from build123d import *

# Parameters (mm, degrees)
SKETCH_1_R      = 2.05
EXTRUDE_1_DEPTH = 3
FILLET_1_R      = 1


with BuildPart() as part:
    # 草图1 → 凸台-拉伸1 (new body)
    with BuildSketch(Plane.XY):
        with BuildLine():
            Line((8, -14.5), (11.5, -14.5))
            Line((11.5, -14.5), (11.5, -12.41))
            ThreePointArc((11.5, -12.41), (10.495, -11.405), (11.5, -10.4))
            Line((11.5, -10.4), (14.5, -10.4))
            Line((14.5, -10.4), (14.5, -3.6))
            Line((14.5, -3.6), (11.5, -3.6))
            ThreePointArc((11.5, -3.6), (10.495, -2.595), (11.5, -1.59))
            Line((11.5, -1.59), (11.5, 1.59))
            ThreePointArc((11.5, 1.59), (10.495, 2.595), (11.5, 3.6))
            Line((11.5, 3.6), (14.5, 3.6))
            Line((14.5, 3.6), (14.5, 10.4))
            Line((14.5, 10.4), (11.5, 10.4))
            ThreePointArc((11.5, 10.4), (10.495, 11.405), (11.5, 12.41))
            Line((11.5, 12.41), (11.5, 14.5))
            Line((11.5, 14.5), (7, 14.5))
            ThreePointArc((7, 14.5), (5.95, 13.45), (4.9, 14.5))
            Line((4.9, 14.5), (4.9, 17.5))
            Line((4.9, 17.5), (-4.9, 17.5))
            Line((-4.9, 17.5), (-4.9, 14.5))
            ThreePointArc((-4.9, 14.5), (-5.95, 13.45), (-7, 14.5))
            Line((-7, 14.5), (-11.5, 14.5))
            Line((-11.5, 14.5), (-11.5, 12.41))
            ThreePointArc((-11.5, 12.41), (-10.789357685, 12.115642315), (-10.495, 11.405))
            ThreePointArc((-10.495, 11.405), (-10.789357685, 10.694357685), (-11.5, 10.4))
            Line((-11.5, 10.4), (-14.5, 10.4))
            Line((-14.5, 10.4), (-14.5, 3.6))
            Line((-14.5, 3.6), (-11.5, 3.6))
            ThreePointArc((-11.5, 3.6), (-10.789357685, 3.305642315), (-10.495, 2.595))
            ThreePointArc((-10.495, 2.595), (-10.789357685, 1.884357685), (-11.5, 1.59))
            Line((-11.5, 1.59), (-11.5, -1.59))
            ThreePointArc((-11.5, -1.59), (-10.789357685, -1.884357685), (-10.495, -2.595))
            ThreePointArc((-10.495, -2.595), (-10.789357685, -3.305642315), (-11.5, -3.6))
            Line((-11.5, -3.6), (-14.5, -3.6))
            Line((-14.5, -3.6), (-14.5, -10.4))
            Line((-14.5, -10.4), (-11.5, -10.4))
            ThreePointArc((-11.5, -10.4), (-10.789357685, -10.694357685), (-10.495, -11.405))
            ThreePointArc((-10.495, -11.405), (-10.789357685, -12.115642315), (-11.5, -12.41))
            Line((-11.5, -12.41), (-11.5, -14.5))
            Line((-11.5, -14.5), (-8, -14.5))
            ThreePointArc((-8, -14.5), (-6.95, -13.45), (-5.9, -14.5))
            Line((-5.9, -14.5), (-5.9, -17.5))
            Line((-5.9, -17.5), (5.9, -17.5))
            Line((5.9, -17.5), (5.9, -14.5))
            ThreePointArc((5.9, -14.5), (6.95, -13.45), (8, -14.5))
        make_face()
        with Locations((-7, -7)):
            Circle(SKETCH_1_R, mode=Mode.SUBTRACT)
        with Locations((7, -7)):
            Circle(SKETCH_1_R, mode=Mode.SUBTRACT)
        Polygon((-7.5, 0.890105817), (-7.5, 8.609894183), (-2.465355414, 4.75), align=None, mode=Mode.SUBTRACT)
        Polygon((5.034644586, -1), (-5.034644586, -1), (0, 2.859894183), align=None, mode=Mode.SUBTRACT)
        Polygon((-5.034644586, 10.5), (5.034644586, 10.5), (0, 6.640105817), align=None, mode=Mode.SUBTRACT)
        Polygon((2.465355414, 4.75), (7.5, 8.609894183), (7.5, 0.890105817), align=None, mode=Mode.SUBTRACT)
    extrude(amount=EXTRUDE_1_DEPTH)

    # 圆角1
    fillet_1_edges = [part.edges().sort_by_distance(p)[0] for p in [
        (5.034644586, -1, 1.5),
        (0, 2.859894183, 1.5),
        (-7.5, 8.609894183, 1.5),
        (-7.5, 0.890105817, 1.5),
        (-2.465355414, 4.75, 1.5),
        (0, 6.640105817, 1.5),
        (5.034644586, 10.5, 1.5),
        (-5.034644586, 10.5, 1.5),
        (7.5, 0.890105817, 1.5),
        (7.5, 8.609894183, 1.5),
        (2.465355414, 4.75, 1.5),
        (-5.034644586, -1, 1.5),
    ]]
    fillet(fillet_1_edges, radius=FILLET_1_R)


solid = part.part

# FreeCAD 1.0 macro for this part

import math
import FreeCAD as App
import Part
import Sketcher

V = App.Vector


def edges_at(feature, points):
    """Names of the edges that pass closest to the given points."""
    edges = feature.Shape.Edges
    near = lambda p: min(range(len(edges)), key=lambda i: edges[i].distToShape(Part.Vertex(*p))[0])
    return sorted({f"Edge{near(p) + 1}" for p in points})


def add_polygon(sketch, points):
    """Adds a closed chain of lines whose ends are joined by coincident constraints."""
    first, n = sketch.GeometryCount, len(points)
    for a, b in zip(points, points[1:] + points[:1]):
        sketch.addGeometry(Part.LineSegment(App.Vector(*a, 0), App.Vector(*b, 0)), False)
    for i in range(n):
        sketch.addConstraint(Sketcher.Constraint("Coincident", first + i, 2, first + (i + 1) % n, 1))

doc = App.newDocument("Part")
body = doc.addObject("PartDesign::Body", "Body")

sketch1 = doc.addObject("Sketcher::SketchObject", "Sketch")
body.addObject(sketch1)
sketch1.AttachmentSupport = (doc.XY_Plane, [""])
sketch1.MapMode = "FlatFace"
sketch1.addGeometry(Part.LineSegment(V(8, -14.5, 0), V(11.5, -14.5, 0)), False)
sketch1.addGeometry(Part.LineSegment(V(11.5, -14.5, 0), V(11.5, -12.4, 0)), False)
sketch1.addGeometry(Part.ArcOfCircle(Part.Circle(V(11.5, -11.4, 0), V(0, 0, 1), 1), math.radians(90), math.radians(270)), False)
sketch1.addGeometry(Part.LineSegment(V(11.5, -10.4, 0), V(14.5, -10.4, 0)), False)
sketch1.addGeometry(Part.LineSegment(V(14.5, -10.4, 0), V(14.5, -3.6, 0)), False)
sketch1.addGeometry(Part.LineSegment(V(14.5, -3.6, 0), V(11.5, -3.6, 0)), False)
sketch1.addGeometry(Part.ArcOfCircle(Part.Circle(V(11.5, -2.6, 0), V(0, 0, 1), 1), math.radians(90), math.radians(270)), False)
sketch1.addGeometry(Part.LineSegment(V(11.5, -1.6, 0), V(11.5, 1.6, 0)), False)
sketch1.addGeometry(Part.ArcOfCircle(Part.Circle(V(11.5, 2.6, 0), V(0, 0, 1), 1), math.radians(90), math.radians(270)), False)
sketch1.addGeometry(Part.LineSegment(V(11.5, 3.6, 0), V(14.5, 3.6, 0)), False)
sketch1.addGeometry(Part.LineSegment(V(14.5, 3.6, 0), V(14.5, 10.4, 0)), False)
sketch1.addGeometry(Part.LineSegment(V(14.5, 10.4, 0), V(11.5, 10.4, 0)), False)
sketch1.addGeometry(Part.ArcOfCircle(Part.Circle(V(11.5, 11.4, 0), V(0, 0, 1), 1), math.radians(90), math.radians(270)), False)
sketch1.addGeometry(Part.LineSegment(V(11.5, 12.4, 0), V(11.5, 14.5, 0)), False)
sketch1.addGeometry(Part.LineSegment(V(11.5, 14.5, 0), V(7, 14.5, 0)), False)
sketch1.addGeometry(Part.ArcOfCircle(Part.Circle(V(6, 14.5, 0), V(0, 0, 1), 1.1), math.radians(180), math.radians(360)), False)
sketch1.addGeometry(Part.LineSegment(V(4.9, 14.5, 0), V(4.9, 17.5, 0)), False)
sketch1.addGeometry(Part.LineSegment(V(4.9, 17.5, 0), V(-4.9, 17.5, 0)), False)
sketch1.addGeometry(Part.LineSegment(V(-4.9, 17.5, 0), V(-4.9, 14.5, 0)), False)
sketch1.addGeometry(Part.ArcOfCircle(Part.Circle(V(-6, 14.5, 0), V(0, 0, 1), 1.1), math.radians(180), math.radians(360)), False)
sketch1.addGeometry(Part.LineSegment(V(-7, 14.5, 0), V(-11.5, 14.5, 0)), False)
sketch1.addGeometry(Part.LineSegment(V(-11.5, 14.5, 0), V(-11.5, 12.4, 0)), False)
sketch1.addGeometry(Part.ArcOfCircle(Part.Circle(V(-11.5, 11.4, 0), V(0, 0, 1), 1), math.radians(0), math.radians(90)), False)
sketch1.addGeometry(Part.ArcOfCircle(Part.Circle(V(-11.5, 11.4, 0), V(0, 0, 1), 1), math.radians(-90), math.radians(0)), False)
sketch1.addGeometry(Part.LineSegment(V(-11.5, 10.4, 0), V(-14.5, 10.4, 0)), False)
sketch1.addGeometry(Part.LineSegment(V(-14.5, 10.4, 0), V(-14.5, 3.6, 0)), False)
sketch1.addGeometry(Part.LineSegment(V(-14.5, 3.6, 0), V(-11.5, 3.6, 0)), False)
sketch1.addGeometry(Part.ArcOfCircle(Part.Circle(V(-11.5, 2.6, 0), V(0, 0, 1), 1), math.radians(0), math.radians(90)), False)
sketch1.addGeometry(Part.ArcOfCircle(Part.Circle(V(-11.5, 2.6, 0), V(0, 0, 1), 1), math.radians(-90), math.radians(0)), False)
sketch1.addGeometry(Part.LineSegment(V(-11.5, 1.6, 0), V(-11.5, -1.6, 0)), False)
sketch1.addGeometry(Part.ArcOfCircle(Part.Circle(V(-11.5, -2.6, 0), V(0, 0, 1), 1), math.radians(0), math.radians(90)), False)
sketch1.addGeometry(Part.ArcOfCircle(Part.Circle(V(-11.5, -2.6, 0), V(0, 0, 1), 1), math.radians(-90), math.radians(0)), False)
sketch1.addGeometry(Part.LineSegment(V(-11.5, -3.6, 0), V(-14.5, -3.6, 0)), False)
sketch1.addGeometry(Part.LineSegment(V(-14.5, -3.6, 0), V(-14.5, -10.4, 0)), False)
sketch1.addGeometry(Part.LineSegment(V(-14.5, -10.4, 0), V(-11.5, -10.4, 0)), False)
sketch1.addGeometry(Part.ArcOfCircle(Part.Circle(V(-11.5, -11.4, 0), V(0, 0, 1), 1), math.radians(0), math.radians(90)), False)
sketch1.addGeometry(Part.ArcOfCircle(Part.Circle(V(-11.5, -11.4, 0), V(0, 0, 1), 1), math.radians(-90), math.radians(0)), False)
sketch1.addGeometry(Part.LineSegment(V(-11.5, -12.4, 0), V(-11.5, -14.5, 0)), False)
sketch1.addGeometry(Part.LineSegment(V(-11.5, -14.5, 0), V(-8, -14.5, 0)), False)
sketch1.addGeometry(Part.ArcOfCircle(Part.Circle(V(-7, -14.5, 0), V(0, 0, 1), 1.1), math.radians(0), math.radians(180)), False)
sketch1.addGeometry(Part.LineSegment(V(-5.9, -14.5, 0), V(-5.9, -17.5, 0)), False)
sketch1.addGeometry(Part.LineSegment(V(-5.9, -17.5, 0), V(5.9, -17.5, 0)), False)
sketch1.addGeometry(Part.LineSegment(V(5.9, -17.5, 0), V(5.9, -14.5, 0)), False)
sketch1.addGeometry(Part.ArcOfCircle(Part.Circle(V(7, -14.5, 0), V(0, 0, 1), 1.1), math.radians(0), math.radians(180)), False)
sketch1.addGeometry(Part.Circle(V(-7, -7, 0), V(0, 0, 1), 2), False)
sketch1.addGeometry(Part.Circle(V(7, -7, 0), V(0, 0, 1), 2), False)
add_polygon(sketch1, [(-2.5, 4.8), (-7.5, 0.9), (-7.5, 8.6)])
add_polygon(sketch1, [(0, 2.9), (5, -1), (-5, -1)])
add_polygon(sketch1, [(7.5, 0.9), (2.5, 4.8), (7.5, 8.6)])
add_polygon(sketch1, [(0, 6.6), (-5, 10.5), (5, 10.5)])
sketch1.addConstraint([
    Sketcher.Constraint("Coincident", 0, 2, 1, 1),
    Sketcher.Constraint("Coincident", 1, 2, 2, 2),
    Sketcher.Constraint("Tangent", 2, 1, 3, 1),
    Sketcher.Constraint("Coincident", 3, 2, 4, 1),
    Sketcher.Constraint("Coincident", 4, 2, 5, 1),
    Sketcher.Constraint("Tangent", 5, 2, 6, 2),
    Sketcher.Constraint("Coincident", 6, 1, 7, 1),
    Sketcher.Constraint("Coincident", 7, 2, 8, 2),
    Sketcher.Constraint("Tangent", 8, 1, 9, 1),
    Sketcher.Constraint("Coincident", 9, 2, 10, 1),
    Sketcher.Constraint("Coincident", 10, 2, 11, 1),
    Sketcher.Constraint("Tangent", 11, 2, 12, 2),
    Sketcher.Constraint("Coincident", 12, 1, 13, 1),
    Sketcher.Constraint("Coincident", 13, 2, 14, 1),
    Sketcher.Constraint("Coincident", 14, 2, 15, 2),
    Sketcher.Constraint("Tangent", 15, 1, 16, 1),
    Sketcher.Constraint("Coincident", 16, 2, 17, 1),
    Sketcher.Constraint("Coincident", 17, 2, 18, 1),
    Sketcher.Constraint("Tangent", 18, 2, 19, 2),
    Sketcher.Constraint("Coincident", 19, 1, 20, 1),
    Sketcher.Constraint("Coincident", 20, 2, 21, 1),
    Sketcher.Constraint("Coincident", 21, 2, 22, 2),
    Sketcher.Constraint("Tangent", 22, 1, 23, 2),
    Sketcher.Constraint("Tangent", 23, 1, 24, 1),
    Sketcher.Constraint("Coincident", 24, 2, 25, 1),
    Sketcher.Constraint("Coincident", 25, 2, 26, 1),
    Sketcher.Constraint("Tangent", 26, 2, 27, 2),
    Sketcher.Constraint("Tangent", 27, 1, 28, 2),
    Sketcher.Constraint("Coincident", 28, 1, 29, 1),
    Sketcher.Constraint("Coincident", 29, 2, 30, 2),
    Sketcher.Constraint("Tangent", 30, 1, 31, 2),
    Sketcher.Constraint("Tangent", 31, 1, 32, 1),
    Sketcher.Constraint("Coincident", 32, 2, 33, 1),
    Sketcher.Constraint("Coincident", 33, 2, 34, 1),
    Sketcher.Constraint("Tangent", 34, 2, 35, 2),
    Sketcher.Constraint("Tangent", 35, 1, 36, 2),
    Sketcher.Constraint("Coincident", 36, 1, 37, 1),
    Sketcher.Constraint("Coincident", 37, 2, 38, 1),
    Sketcher.Constraint("Coincident", 38, 2, 39, 2),
    Sketcher.Constraint("Tangent", 39, 1, 40, 1),
    Sketcher.Constraint("Coincident", 40, 2, 41, 1),
    Sketcher.Constraint("Coincident", 41, 2, 42, 1),
    Sketcher.Constraint("Tangent", 42, 2, 43, 2),
    Sketcher.Constraint("Coincident", 43, 1, 0, 1),
    Sketcher.Constraint("Horizontal", 0),
    Sketcher.Constraint("Vertical", 1),
    Sketcher.Constraint("Horizontal", 3),
    Sketcher.Constraint("Vertical", 4),
    Sketcher.Constraint("Horizontal", 5),
    Sketcher.Constraint("Vertical", 7),
    Sketcher.Constraint("Horizontal", 9),
    Sketcher.Constraint("Vertical", 10),
    Sketcher.Constraint("Horizontal", 11),
    Sketcher.Constraint("Vertical", 13),
    Sketcher.Constraint("Horizontal", 14),
    Sketcher.Constraint("Vertical", 16),
    Sketcher.Constraint("Horizontal", 17),
    Sketcher.Constraint("Vertical", 18),
    Sketcher.Constraint("Horizontal", 20),
    Sketcher.Constraint("Vertical", 21),
    Sketcher.Constraint("Horizontal", 24),
    Sketcher.Constraint("Vertical", 25),
    Sketcher.Constraint("Horizontal", 26),
    Sketcher.Constraint("Vertical", 29),
    Sketcher.Constraint("Horizontal", 32),
    Sketcher.Constraint("Vertical", 33),
    Sketcher.Constraint("Horizontal", 34),
    Sketcher.Constraint("Vertical", 37),
    Sketcher.Constraint("Horizontal", 38),
    Sketcher.Constraint("Vertical", 40),
    Sketcher.Constraint("Horizontal", 41),
    Sketcher.Constraint("Vertical", 42),
    Sketcher.Constraint("Vertical", 47),
    Sketcher.Constraint("Horizontal", 50),
    Sketcher.Constraint("Vertical", 54),
    Sketcher.Constraint("Horizontal", 56),
    Sketcher.Constraint("Equal", 2, 6),
    Sketcher.Constraint("Equal", 6, 8),
    Sketcher.Constraint("Equal", 8, 12),
    Sketcher.Constraint("Equal", 15, 19),
    Sketcher.Constraint("Equal", 12, 22),
    Sketcher.Constraint("Equal", 22, 23),
    Sketcher.Constraint("Equal", 23, 27),
    Sketcher.Constraint("Equal", 27, 28),
    Sketcher.Constraint("Equal", 28, 30),
    Sketcher.Constraint("Equal", 30, 31),
    Sketcher.Constraint("Equal", 31, 35),
    Sketcher.Constraint("Equal", 35, 36),
    Sketcher.Constraint("Equal", 19, 39),
    Sketcher.Constraint("Equal", 39, 43),
    Sketcher.Constraint("Equal", 44, 45),
    Sketcher.Constraint("Symmetric", 2, 3, 22, 3, -1, 1),
    Sketcher.Constraint("Symmetric", 6, 3, 27, 3, -1, 1),
    Sketcher.Constraint("Symmetric", 8, 3, 30, 3, -1, 1),
    Sketcher.Constraint("Symmetric", 12, 3, 35, 3, -1, 1),
    Sketcher.Constraint("Symmetric", 0, 2, 20, 2, -1, 1),
    Sketcher.Constraint("Symmetric", 13, 2, 37, 2, -1, 1),
    Sketcher.Constraint("Symmetric", 15, 3, 19, 3, -2),
    Sketcher.Constraint("Symmetric", 12, 3, 22, 3, -2),
    Sketcher.Constraint("Symmetric", 8, 3, 27, 3, -2),
    Sketcher.Constraint("Symmetric", 39, 3, 43, 3, -2),
    Sketcher.Constraint("Symmetric", 44, 3, 45, 3, -2),
    Sketcher.Constraint("Symmetric", 13, 2, 20, 2, -2),
    Sketcher.Constraint("Symmetric", 48, 2, 52, 2, -2),
    Sketcher.Constraint("Symmetric", 47, 2, 53, 2, -2),
    Sketcher.Constraint("PointOnObject", 51, 2, -2),
    Sketcher.Constraint("PointOnObject", 57, 2, -2),
    Sketcher.Constraint("Parallel", 48, 49),
    Sketcher.Constraint("Parallel", 46, 51),
    Sketcher.Constraint("Parallel", 49, 52),
    Sketcher.Constraint("Parallel", 51, 53),
    Sketcher.Constraint("Parallel", 52, 55),
    Sketcher.Constraint("Parallel", 53, 57),
    Sketcher.Constraint("Horizontal", 43, 3, 0, 2),
    Sketcher.Constraint("Horizontal", 19, 3, 13, 2),
    Sketcher.Constraint("Horizontal", 23, 3, 22, 1),
    Sketcher.Constraint("Horizontal", 28, 3, 27, 1),
    Sketcher.Constraint("Horizontal", 31, 3, 30, 1),
    Sketcher.Constraint("Horizontal", 36, 3, 35, 1),
    Sketcher.Constraint("Vertical", 2, 3, 6, 3),
    Sketcher.Constraint("Vertical", 12, 3, 0, 2),
    Sketcher.Constraint("Vertical", 5, 2, 6, 1),
    Sketcher.Constraint("Vertical", 4, 2, 9, 2),
    Sketcher.Constraint("Vertical", 45, 3, 14, 2),
    Sketcher.Constraint("Vertical", 26, 2, 28, 1),
    Sketcher.Constraint("Vertical", 25, 2, 32, 2),
    Sketcher.Constraint("Vertical", 50, 2, 55, 2),
    Sketcher.Constraint("Equal", 11, 24),
    Sketcher.Constraint("Equal", 34, 16),
    Sketcher.Constraint("Equal", 18, 40),
    Sketcher.Constraint("Equal", 48, 49),
    Sketcher.Constraint("Diameter", 44, 4.1),
    Sketcher.Constraint("DistanceX", 3, 1, 3, 2, 3.0),
    Sketcher.Constraint("Radius", 15, 1.05),
    Sketcher.Constraint("DistanceX", 0, 1, 0, 2, 3.5),
    Sketcher.Constraint("DistanceX", 14, 2, 14, 1, 4.5),
    Sketcher.Constraint("DistanceX", 17, 2, 17, 1, 9.8),
    Sketcher.Constraint("DistanceY", 4, 1, 4, 2, 6.8),
    Sketcher.Constraint("DistanceY", 44, 3, -1, 1, 7.0),
    Sketcher.Constraint("DistanceY", 49, 2, -1, 1, 1.0),
    Sketcher.Constraint("Radius", 2, 1.005),
    Sketcher.Constraint("DistanceY", 1, 1, 1, 2, 2.09),
    Sketcher.Constraint("DistanceY", 7, 1, 7, 2, 3.18),
    Sketcher.Constraint("DistanceX", 46, 2, -1, 1, 7.5),
    Sketcher.Constraint("DistanceY", -1, 1, 55, 2, 10.5),
    Sketcher.Constraint("DistanceY", -1, 1, 48, 2, 4.75),
    Sketcher.Constraint("DistanceX", 50, 2, 50, 1, 10.069289),
    Sketcher.Constraint("DistanceY", 47, 1, 47, 2, 7.719788),
])
pad1 = doc.addObject("PartDesign::Pad", "Pad")
body.addObject(pad1)
pad1.Profile = sketch1
pad1.Length = 3
doc.recompute()

fillet = doc.addObject("PartDesign::Fillet", "Fillet")
body.addObject(fillet)
fillet.Base = (pad1, edges_at(pad1, [
    (5.035, -1, 1.5),
    (0, 2.86, 1.5),
    (-7.5, 8.61, 1.5),
    (-7.5, 0.89, 1.5),
    (-2.465, 4.75, 1.5),
    (0, 6.64, 1.5),
    (5.035, 10.5, 1.5),
    (-5.035, 10.5, 1.5),
    (7.5, 0.89, 1.5),
    (7.5, 8.61, 1.5),
    (2.465, 4.75, 1.5),
    (-5.035, -1, 1.5),
]))
fillet.Radius = 1

doc.recompute()
